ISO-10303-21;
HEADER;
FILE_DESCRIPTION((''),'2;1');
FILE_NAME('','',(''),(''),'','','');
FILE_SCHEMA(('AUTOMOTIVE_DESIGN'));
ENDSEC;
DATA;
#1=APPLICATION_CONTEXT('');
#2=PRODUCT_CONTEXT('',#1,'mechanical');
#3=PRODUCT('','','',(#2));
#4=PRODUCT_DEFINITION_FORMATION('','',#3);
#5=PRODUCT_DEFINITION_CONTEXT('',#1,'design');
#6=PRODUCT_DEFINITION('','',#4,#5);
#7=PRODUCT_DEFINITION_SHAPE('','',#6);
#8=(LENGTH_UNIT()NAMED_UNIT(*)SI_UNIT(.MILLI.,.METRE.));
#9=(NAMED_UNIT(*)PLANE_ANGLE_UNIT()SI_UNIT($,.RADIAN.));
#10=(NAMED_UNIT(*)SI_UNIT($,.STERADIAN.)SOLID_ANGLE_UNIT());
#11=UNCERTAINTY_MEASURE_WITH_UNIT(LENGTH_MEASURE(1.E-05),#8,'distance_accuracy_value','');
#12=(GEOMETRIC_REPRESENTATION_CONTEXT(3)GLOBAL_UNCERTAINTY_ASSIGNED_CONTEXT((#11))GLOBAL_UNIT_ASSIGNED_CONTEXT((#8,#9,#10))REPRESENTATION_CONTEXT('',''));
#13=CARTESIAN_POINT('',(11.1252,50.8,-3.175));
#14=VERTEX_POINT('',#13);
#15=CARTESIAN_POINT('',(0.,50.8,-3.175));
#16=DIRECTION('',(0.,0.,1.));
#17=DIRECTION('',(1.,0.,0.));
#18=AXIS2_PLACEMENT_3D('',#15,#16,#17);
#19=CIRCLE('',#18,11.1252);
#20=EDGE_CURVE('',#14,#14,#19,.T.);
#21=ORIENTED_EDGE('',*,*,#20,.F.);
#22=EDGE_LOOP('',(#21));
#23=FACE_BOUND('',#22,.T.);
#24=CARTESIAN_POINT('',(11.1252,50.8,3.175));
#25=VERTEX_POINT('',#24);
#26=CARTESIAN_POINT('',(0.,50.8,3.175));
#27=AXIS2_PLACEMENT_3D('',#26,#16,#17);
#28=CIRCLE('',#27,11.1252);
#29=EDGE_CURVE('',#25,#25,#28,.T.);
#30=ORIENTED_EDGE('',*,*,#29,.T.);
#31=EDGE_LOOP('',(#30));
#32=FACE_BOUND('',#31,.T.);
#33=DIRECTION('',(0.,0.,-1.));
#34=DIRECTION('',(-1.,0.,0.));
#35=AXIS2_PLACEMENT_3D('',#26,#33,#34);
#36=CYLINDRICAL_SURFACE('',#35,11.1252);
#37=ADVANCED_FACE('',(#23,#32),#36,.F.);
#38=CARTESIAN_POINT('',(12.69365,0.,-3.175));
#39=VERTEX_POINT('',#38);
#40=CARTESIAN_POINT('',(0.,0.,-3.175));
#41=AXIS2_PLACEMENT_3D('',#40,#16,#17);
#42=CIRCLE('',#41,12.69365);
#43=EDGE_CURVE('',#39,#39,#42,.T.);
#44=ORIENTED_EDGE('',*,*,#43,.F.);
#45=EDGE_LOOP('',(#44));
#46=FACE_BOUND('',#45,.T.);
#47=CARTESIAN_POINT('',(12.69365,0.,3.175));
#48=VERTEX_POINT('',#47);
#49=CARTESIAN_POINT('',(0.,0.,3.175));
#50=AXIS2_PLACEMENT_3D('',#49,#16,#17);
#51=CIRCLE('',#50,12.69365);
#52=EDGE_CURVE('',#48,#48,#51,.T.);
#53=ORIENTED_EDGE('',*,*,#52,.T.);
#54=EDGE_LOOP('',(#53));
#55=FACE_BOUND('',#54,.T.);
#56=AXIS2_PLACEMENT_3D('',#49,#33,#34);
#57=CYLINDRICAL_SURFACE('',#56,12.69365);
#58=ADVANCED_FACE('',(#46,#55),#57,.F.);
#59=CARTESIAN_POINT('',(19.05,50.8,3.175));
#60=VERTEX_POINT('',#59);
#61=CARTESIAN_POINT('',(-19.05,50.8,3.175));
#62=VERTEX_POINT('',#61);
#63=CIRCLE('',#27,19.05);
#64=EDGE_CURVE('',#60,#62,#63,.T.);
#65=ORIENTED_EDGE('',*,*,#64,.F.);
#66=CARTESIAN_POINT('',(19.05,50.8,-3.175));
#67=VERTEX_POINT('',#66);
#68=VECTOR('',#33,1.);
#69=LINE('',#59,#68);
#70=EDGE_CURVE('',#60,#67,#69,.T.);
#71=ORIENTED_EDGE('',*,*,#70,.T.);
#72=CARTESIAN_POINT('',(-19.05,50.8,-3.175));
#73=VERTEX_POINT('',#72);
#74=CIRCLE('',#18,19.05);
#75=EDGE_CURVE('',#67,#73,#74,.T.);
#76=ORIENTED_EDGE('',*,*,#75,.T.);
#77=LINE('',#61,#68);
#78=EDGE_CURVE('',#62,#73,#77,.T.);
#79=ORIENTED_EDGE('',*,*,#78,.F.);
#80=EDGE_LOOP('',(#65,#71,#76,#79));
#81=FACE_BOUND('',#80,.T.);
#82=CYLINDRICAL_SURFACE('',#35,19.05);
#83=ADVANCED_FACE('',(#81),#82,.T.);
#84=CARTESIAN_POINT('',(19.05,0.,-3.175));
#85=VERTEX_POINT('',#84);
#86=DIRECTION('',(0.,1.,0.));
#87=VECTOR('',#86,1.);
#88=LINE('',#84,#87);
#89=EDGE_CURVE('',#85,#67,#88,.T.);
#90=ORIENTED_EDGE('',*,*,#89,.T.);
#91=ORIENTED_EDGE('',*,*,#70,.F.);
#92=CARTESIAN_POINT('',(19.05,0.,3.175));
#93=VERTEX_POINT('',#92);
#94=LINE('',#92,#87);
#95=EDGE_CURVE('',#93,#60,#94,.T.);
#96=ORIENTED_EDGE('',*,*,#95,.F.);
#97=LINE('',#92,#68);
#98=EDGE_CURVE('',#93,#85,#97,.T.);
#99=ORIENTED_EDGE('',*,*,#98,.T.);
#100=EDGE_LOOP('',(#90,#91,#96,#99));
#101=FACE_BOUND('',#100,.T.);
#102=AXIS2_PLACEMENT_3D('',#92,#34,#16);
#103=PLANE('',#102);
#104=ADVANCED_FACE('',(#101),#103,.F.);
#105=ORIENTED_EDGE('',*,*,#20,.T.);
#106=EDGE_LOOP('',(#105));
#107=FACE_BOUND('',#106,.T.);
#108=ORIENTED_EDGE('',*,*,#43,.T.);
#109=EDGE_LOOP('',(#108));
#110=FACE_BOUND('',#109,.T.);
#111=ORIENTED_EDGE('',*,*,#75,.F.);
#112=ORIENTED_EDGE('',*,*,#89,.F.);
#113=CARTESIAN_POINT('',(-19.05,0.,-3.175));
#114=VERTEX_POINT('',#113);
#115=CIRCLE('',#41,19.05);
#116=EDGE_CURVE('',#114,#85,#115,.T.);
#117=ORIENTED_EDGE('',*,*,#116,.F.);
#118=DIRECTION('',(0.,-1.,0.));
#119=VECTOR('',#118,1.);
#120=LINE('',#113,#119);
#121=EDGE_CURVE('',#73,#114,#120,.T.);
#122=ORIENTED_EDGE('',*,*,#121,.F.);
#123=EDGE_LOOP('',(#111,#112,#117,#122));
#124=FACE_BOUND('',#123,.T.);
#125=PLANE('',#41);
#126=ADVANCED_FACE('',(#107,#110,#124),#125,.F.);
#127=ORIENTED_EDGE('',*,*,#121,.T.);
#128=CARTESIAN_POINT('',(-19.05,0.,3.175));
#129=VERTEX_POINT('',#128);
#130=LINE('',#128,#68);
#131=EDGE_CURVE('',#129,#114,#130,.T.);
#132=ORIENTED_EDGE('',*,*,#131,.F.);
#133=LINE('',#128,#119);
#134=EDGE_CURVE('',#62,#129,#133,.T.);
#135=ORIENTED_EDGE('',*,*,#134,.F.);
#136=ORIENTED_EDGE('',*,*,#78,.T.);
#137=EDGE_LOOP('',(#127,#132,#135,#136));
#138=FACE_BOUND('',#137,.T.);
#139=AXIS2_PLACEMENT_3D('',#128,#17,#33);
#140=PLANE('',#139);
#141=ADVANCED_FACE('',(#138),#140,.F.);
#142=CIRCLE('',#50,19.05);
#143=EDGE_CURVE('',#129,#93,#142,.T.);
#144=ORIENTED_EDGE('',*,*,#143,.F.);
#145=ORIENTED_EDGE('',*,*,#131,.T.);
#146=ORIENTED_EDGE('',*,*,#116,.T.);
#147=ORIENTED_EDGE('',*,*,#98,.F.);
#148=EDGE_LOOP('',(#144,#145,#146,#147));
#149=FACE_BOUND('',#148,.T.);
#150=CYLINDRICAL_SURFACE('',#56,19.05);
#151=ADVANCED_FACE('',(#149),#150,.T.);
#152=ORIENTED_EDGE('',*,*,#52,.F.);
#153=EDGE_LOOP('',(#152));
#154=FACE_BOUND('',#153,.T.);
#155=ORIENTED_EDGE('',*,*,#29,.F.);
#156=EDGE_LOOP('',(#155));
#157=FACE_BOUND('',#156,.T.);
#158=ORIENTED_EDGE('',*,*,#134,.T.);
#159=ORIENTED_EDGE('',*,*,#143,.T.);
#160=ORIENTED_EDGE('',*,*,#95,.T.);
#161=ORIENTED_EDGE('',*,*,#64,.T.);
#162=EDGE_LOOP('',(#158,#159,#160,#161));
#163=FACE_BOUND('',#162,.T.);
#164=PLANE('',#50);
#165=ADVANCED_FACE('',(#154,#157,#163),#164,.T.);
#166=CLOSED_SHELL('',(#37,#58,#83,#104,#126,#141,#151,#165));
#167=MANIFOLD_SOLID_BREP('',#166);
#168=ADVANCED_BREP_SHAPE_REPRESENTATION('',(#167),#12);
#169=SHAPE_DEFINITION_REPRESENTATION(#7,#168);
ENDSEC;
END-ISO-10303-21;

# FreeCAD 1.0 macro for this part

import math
import FreeCAD as App
import Part
import Sketcher
from FreeCAD import Vector
Q = App.Units.Quantity

doc = App.newDocument("Part")
body = doc.addObject("PartDesign::Body", "Body")

# Sketch on XY plane
sketch1 = body.newObject("Sketcher::SketchObject", "Sketch")
sketch1.AttachmentSupport = (doc.getObject("XY_Plane"), [""])
sketch1.MapMode = "FlatFace"
sketch1.addGeometry(Part.LineSegment(Vector(-19.05, 50.8, 0), Vector(-19.05, 0, 0)), False)
sketch1.addGeometry(Part.ArcOfCircle(Part.Circle(Vector(0, 0, 0), Vector(0, 0, 1), 19.05), math.radians(180), math.radians(360)), False)
sketch1.addGeometry(Part.LineSegment(Vector(19.05, 0, 0), Vector(19.05, 50.8, 0)), False)
sketch1.addGeometry(Part.ArcOfCircle(Part.Circle(Vector(0, 50.8, 0), Vector(0, 0, 1), 19.05), math.radians(0), math.radians(180)), False)
sketch1.addGeometry(Part.Circle(Vector(0, 0, 0), Vector(0, 0, 1), 12.69365), False)
sketch1.addGeometry(Part.Circle(Vector(0, 50.8, 0), Vector(0, 0, 1), 11.1252), False)
sketch1.addConstraint(Sketcher.Constraint("Tangent", 0, 2, 1, 1))
sketch1.addConstraint(Sketcher.Constraint("Tangent", 1, 2, 2, 1))
sketch1.addConstraint(Sketcher.Constraint("Tangent", 2, 2, 3, 1))
sketch1.addConstraint(Sketcher.Constraint("Tangent", 3, 2, 0, 1))
sketch1.addConstraint(Sketcher.Constraint("Vertical", 0))
sketch1.addConstraint(Sketcher.Constraint("Vertical", 2))
sketch1.addConstraint(Sketcher.Constraint("Coincident", 1, 3, -1, 1))
sketch1.addConstraint(Sketcher.Constraint("Coincident", 4, 3, -1, 1))
sketch1.addConstraint(Sketcher.Constraint("Coincident", 5, 3, 3, 3))
sketch1.addConstraint(Sketcher.Constraint("DistanceY", 0, 2, 0, 1, Q("2 in")))
sketch1.addConstraint(Sketcher.Constraint("Radius", 1, Q("0.75 in")))
sketch1.addConstraint(Sketcher.Constraint("Diameter", 5, Q("0.876 in")))
sketch1.addConstraint(Sketcher.Constraint("Diameter", 4, Q("0.9995 in")))
pad1 = body.newObject("PartDesign::Pad", "Pad")
pad1.Profile = sketch1
pad1.Length = Q("0.25 in")
pad1.Midplane = True

doc.recompute()
